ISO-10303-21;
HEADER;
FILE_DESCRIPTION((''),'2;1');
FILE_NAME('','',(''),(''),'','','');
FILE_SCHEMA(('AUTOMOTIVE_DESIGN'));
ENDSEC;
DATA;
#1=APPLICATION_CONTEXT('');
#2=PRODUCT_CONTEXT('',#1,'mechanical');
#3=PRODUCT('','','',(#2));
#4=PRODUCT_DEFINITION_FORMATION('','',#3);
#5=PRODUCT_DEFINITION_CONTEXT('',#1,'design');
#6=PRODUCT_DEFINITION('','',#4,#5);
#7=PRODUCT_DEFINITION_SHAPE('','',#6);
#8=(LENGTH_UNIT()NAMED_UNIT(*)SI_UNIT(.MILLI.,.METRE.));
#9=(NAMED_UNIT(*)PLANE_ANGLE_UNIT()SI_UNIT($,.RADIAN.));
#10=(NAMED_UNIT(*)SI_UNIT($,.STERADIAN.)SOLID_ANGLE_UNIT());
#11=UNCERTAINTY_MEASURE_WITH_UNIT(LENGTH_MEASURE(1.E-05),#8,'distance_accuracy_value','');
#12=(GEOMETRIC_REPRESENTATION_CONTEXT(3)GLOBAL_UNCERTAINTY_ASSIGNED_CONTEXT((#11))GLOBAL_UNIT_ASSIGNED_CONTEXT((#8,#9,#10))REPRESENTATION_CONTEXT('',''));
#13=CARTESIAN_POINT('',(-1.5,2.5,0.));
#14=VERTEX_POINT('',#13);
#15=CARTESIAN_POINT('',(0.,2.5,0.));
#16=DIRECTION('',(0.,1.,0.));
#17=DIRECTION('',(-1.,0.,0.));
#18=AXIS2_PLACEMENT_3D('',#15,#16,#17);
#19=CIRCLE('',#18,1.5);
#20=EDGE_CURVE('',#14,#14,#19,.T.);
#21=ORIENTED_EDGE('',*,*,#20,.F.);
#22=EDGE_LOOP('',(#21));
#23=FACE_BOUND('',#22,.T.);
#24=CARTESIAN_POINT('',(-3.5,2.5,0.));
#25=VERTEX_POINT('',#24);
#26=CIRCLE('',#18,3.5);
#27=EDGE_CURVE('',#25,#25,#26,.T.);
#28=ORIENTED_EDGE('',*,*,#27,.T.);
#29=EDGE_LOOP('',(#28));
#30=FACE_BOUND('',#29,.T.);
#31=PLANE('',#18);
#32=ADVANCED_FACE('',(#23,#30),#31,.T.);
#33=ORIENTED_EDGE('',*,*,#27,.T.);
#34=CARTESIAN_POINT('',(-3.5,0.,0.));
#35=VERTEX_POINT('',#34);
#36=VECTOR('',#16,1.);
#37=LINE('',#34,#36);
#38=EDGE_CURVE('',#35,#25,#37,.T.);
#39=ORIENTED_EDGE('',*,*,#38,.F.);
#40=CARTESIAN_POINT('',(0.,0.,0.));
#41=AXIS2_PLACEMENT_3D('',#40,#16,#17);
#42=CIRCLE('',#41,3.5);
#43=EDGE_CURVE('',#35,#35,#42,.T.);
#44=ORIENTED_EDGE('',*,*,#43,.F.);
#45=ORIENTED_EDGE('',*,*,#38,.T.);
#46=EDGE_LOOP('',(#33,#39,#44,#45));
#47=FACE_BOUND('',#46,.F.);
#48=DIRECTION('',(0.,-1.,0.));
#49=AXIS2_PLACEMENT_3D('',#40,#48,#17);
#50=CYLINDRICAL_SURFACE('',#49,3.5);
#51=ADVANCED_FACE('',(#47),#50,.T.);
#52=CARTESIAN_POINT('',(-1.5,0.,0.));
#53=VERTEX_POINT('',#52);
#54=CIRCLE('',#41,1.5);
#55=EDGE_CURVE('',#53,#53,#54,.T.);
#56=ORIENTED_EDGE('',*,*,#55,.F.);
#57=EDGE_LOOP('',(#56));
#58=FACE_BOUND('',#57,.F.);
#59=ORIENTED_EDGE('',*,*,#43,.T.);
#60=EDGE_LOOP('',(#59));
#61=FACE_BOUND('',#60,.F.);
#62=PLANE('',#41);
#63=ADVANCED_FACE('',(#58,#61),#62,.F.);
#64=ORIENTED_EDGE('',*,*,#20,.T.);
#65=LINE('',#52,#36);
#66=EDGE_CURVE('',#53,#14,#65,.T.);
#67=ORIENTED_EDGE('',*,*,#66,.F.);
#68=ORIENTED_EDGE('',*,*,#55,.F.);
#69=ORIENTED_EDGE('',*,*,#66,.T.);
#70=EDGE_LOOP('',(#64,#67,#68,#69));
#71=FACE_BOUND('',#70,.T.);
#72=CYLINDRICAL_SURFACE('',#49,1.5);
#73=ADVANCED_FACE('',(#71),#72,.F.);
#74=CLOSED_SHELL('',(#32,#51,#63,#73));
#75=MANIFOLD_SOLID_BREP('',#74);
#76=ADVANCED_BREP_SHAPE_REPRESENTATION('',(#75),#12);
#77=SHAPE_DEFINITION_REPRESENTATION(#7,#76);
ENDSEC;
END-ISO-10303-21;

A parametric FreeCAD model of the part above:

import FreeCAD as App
import Part
import Sketcher
Q = App.Units.Quantity

doc = App.newDocument("Part")
body = doc.addObject("PartDesign::Body", "Body")

# Sketch on XZ plane
sketch1 = doc.addObject("Sketcher::SketchObject", "Sketch")
body.addObject(sketch1)
sketch1.AttachmentSupport = (doc.XZ_Plane, [""])
sketch1.MapMode = "FlatFace"
sketch1.addGeometry([
    Part.Circle(App.Vector(0, 0, 0), App.Vector(0, 0, 1), 3.5),
    Part.Circle(App.Vector(0, 0, 0), App.Vector(0, 0, 1), 1.5),
], False)
sketch1.addConstraint([
    Sketcher.Constraint("Coincident", 0, 3, -1, 1),
    Sketcher.Constraint("Coincident", 1, 3, -1, 1),
    Sketcher.Constraint("Diameter", 0, Q("7 mm")),
    Sketcher.Constraint("Diameter", 1, Q("3 mm")),
])
pad1 = doc.addObject("PartDesign::Pad", "Pad")
body.addObject(pad1)
pad1.Profile = sketch1
pad1.Length = 2.5
pad1.Reversed = True

doc.recompute()
